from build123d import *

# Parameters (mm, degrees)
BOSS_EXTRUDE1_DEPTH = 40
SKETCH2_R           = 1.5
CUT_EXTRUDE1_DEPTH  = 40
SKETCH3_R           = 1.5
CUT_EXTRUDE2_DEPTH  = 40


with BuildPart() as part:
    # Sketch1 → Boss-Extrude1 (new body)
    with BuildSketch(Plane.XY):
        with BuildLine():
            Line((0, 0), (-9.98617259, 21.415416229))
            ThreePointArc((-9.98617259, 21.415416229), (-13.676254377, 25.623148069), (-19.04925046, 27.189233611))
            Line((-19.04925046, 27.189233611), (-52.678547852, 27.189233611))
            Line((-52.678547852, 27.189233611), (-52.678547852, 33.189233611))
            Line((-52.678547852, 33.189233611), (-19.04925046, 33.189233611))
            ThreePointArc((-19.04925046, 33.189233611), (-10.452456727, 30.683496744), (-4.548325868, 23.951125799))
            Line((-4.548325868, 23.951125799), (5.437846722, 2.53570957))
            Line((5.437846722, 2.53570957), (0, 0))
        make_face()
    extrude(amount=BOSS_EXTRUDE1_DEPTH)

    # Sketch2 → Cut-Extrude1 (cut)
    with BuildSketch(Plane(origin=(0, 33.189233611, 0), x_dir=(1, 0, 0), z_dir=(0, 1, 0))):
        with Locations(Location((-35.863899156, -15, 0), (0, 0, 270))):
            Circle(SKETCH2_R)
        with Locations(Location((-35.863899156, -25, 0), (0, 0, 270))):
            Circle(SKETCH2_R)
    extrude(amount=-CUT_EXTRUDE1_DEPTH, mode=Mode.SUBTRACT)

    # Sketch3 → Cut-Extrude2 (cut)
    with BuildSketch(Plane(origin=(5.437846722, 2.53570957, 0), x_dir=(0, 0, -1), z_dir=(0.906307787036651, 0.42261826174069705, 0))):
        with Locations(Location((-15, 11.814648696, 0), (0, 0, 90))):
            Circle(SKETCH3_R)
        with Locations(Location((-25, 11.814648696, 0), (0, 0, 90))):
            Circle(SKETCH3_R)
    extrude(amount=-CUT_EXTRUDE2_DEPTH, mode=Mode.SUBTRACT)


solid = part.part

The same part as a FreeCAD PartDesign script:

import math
import FreeCAD as App
import Part
import Sketcher
Q = App.Units.Quantity

doc = App.newDocument("Part")
body = doc.addObject("PartDesign::Body", "Body")

sketch1 = body.newObject("Sketcher::SketchObject", "Sketch")
sketch1.AttachmentSupport = (doc.getObject("XY_Plane"), [""])
sketch1.MapMode = "FlatFace"
sketch1.addGeometry([
    Part.LineSegment(App.Vector(-10, 21, 0), App.Vector(0, 0, 0)),
    Part.LineSegment(App.Vector(0, 0, 0), App.Vector(5, 3, 0)),
    Part.LineSegment(App.Vector(5, 3, 0), App.Vector(-5, 24, 0)),
    Part.ArcOfCircle(Part.Circle(App.Vector(-19, 17, 0), App.Vector(0, 0, 1), 16), math.radians(25), math.radians(90)),
    Part.LineSegment(App.Vector(-19, 33, 0), App.Vector(-53, 33, 0)),
    Part.LineSegment(App.Vector(-53, 33, 0), App.Vector(-53, 27, 0)),
    Part.LineSegment(App.Vector(-53, 27, 0), App.Vector(-19, 27, 0)),
    Part.ArcOfCircle(Part.Circle(App.Vector(-19, 17, 0), App.Vector(0, 0, 1), 10), math.radians(25), math.radians(90)),
], False)
sketch1.addConstraint([
    Sketcher.Constraint("Coincident", 0, 2, 1, 1),
    Sketcher.Constraint("Coincident", 1, 2, 2, 1),
    Sketcher.Constraint("Tangent", 2, 2, 3, 1),
    Sketcher.Constraint("Tangent", 3, 2, 4, 1),
    Sketcher.Constraint("Coincident", 4, 2, 5, 1),
    Sketcher.Constraint("Coincident", 5, 2, 6, 1),
    Sketcher.Constraint("Tangent", 6, 2, 7, 2),
    Sketcher.Constraint("Tangent", 7, 1, 0, 1),
    Sketcher.Constraint("Horizontal", 4),
    Sketcher.Constraint("Vertical", 5),
    Sketcher.Constraint("Horizontal", 6),
    Sketcher.Constraint("Coincident", 0, 2, -1, 1),
    Sketcher.Constraint("Coincident", 7, 3, 3, 3),
    Sketcher.Constraint("Perpendicular", 0, 1),
    Sketcher.Constraint("Perpendicular", 1, 2),
    Sketcher.Constraint("Radius", 3, Q("16 mm")),
    Sketcher.Constraint("Radius", 7, Q("10 mm")),
    Sketcher.Constraint("Angle", 0, Q("-65 deg")),
    Sketcher.Constraint("DistanceX", 4, 2, 4, 1, Q("33.629297 mm")),
    Sketcher.Constraint("DistanceX", 3, 3, -1, 1, Q("19.04925 mm")),
])
pad1 = body.newObject("PartDesign::Pad", "Pad")
pad1.Profile = sketch1
pad1.Length = 40

sketch2 = body.newObject("Sketcher::SketchObject", "Sketch001")
sketch2.AttachmentSupport = (doc.getObject("XZ_Plane"), [""])
sketch2.MapMode = "FlatFace"
sketch2.AttachmentOffset = App.Placement(App.Vector(0, 0, -33.189234), App.Rotation())
sketch2.addGeometry([
    Part.Circle(App.Vector(-35.9, 15, 0), App.Vector(0, 0, 1), 1.5),
    Part.Circle(App.Vector(-35.9, 25, 0), App.Vector(0, 0, 1), 1.5),
], False)
sketch2.addConstraint([
    Sketcher.Constraint("Equal", 0, 1),
    Sketcher.Constraint("Vertical", 0, 3, 1, 3),
    Sketcher.Constraint("Diameter", 0, Q("3 mm")),
    Sketcher.Constraint("DistanceY", -1, 1, 0, 3, Q("15 mm")),
    Sketcher.Constraint("DistanceY", -1, 1, 1, 3, Q("25 mm")),
    Sketcher.Constraint("DistanceX", 0, 3, -1, 1, Q("35.863899 mm")),
])
pocket1 = body.newObject("PartDesign::Pocket", "Pocket")
pocket1.Profile = sketch2
pocket1.Length = 40
pocket1.Reversed = True

sketch3 = body.newObject("Sketcher::SketchObject", "Sketch002")
sketch3.Placement = App.Placement(App.Vector(5.437847, 2.53571, 0), App.Rotation(App.Vector(0, 0, -1), App.Vector(-0.422618262, 0.906307787, 0), App.Vector(0.906307787, 0.422618262, 0), "ZXY"))
sketch3.addGeometry([
    Part.Circle(App.Vector(-15, 11.8, 0), App.Vector(0, 0, 1), 1.5),
    Part.Circle(App.Vector(-25, 11.8, 0), App.Vector(0, 0, 1), 1.5),
], False)
sketch3.addConstraint([
    Sketcher.Constraint("Equal", 0, 1),
    Sketcher.Constraint("Horizontal", 0, 3, 1, 3),
    Sketcher.Constraint("Diameter", 0, Q("3 mm")),
    Sketcher.Constraint("DistanceX", 0, 3, -1, 1, Q("15 mm")),
    Sketcher.Constraint("DistanceX", 1, 3, -1, 1, Q("25 mm")),
    Sketcher.Constraint("DistanceY", -1, 1, 0, 3, Q("11.814649 mm")),
])
pocket2 = body.newObject("PartDesign::Pocket", "Pocket001")
pocket2.Profile = sketch3
pocket2.Length = 40

doc.recompute()
